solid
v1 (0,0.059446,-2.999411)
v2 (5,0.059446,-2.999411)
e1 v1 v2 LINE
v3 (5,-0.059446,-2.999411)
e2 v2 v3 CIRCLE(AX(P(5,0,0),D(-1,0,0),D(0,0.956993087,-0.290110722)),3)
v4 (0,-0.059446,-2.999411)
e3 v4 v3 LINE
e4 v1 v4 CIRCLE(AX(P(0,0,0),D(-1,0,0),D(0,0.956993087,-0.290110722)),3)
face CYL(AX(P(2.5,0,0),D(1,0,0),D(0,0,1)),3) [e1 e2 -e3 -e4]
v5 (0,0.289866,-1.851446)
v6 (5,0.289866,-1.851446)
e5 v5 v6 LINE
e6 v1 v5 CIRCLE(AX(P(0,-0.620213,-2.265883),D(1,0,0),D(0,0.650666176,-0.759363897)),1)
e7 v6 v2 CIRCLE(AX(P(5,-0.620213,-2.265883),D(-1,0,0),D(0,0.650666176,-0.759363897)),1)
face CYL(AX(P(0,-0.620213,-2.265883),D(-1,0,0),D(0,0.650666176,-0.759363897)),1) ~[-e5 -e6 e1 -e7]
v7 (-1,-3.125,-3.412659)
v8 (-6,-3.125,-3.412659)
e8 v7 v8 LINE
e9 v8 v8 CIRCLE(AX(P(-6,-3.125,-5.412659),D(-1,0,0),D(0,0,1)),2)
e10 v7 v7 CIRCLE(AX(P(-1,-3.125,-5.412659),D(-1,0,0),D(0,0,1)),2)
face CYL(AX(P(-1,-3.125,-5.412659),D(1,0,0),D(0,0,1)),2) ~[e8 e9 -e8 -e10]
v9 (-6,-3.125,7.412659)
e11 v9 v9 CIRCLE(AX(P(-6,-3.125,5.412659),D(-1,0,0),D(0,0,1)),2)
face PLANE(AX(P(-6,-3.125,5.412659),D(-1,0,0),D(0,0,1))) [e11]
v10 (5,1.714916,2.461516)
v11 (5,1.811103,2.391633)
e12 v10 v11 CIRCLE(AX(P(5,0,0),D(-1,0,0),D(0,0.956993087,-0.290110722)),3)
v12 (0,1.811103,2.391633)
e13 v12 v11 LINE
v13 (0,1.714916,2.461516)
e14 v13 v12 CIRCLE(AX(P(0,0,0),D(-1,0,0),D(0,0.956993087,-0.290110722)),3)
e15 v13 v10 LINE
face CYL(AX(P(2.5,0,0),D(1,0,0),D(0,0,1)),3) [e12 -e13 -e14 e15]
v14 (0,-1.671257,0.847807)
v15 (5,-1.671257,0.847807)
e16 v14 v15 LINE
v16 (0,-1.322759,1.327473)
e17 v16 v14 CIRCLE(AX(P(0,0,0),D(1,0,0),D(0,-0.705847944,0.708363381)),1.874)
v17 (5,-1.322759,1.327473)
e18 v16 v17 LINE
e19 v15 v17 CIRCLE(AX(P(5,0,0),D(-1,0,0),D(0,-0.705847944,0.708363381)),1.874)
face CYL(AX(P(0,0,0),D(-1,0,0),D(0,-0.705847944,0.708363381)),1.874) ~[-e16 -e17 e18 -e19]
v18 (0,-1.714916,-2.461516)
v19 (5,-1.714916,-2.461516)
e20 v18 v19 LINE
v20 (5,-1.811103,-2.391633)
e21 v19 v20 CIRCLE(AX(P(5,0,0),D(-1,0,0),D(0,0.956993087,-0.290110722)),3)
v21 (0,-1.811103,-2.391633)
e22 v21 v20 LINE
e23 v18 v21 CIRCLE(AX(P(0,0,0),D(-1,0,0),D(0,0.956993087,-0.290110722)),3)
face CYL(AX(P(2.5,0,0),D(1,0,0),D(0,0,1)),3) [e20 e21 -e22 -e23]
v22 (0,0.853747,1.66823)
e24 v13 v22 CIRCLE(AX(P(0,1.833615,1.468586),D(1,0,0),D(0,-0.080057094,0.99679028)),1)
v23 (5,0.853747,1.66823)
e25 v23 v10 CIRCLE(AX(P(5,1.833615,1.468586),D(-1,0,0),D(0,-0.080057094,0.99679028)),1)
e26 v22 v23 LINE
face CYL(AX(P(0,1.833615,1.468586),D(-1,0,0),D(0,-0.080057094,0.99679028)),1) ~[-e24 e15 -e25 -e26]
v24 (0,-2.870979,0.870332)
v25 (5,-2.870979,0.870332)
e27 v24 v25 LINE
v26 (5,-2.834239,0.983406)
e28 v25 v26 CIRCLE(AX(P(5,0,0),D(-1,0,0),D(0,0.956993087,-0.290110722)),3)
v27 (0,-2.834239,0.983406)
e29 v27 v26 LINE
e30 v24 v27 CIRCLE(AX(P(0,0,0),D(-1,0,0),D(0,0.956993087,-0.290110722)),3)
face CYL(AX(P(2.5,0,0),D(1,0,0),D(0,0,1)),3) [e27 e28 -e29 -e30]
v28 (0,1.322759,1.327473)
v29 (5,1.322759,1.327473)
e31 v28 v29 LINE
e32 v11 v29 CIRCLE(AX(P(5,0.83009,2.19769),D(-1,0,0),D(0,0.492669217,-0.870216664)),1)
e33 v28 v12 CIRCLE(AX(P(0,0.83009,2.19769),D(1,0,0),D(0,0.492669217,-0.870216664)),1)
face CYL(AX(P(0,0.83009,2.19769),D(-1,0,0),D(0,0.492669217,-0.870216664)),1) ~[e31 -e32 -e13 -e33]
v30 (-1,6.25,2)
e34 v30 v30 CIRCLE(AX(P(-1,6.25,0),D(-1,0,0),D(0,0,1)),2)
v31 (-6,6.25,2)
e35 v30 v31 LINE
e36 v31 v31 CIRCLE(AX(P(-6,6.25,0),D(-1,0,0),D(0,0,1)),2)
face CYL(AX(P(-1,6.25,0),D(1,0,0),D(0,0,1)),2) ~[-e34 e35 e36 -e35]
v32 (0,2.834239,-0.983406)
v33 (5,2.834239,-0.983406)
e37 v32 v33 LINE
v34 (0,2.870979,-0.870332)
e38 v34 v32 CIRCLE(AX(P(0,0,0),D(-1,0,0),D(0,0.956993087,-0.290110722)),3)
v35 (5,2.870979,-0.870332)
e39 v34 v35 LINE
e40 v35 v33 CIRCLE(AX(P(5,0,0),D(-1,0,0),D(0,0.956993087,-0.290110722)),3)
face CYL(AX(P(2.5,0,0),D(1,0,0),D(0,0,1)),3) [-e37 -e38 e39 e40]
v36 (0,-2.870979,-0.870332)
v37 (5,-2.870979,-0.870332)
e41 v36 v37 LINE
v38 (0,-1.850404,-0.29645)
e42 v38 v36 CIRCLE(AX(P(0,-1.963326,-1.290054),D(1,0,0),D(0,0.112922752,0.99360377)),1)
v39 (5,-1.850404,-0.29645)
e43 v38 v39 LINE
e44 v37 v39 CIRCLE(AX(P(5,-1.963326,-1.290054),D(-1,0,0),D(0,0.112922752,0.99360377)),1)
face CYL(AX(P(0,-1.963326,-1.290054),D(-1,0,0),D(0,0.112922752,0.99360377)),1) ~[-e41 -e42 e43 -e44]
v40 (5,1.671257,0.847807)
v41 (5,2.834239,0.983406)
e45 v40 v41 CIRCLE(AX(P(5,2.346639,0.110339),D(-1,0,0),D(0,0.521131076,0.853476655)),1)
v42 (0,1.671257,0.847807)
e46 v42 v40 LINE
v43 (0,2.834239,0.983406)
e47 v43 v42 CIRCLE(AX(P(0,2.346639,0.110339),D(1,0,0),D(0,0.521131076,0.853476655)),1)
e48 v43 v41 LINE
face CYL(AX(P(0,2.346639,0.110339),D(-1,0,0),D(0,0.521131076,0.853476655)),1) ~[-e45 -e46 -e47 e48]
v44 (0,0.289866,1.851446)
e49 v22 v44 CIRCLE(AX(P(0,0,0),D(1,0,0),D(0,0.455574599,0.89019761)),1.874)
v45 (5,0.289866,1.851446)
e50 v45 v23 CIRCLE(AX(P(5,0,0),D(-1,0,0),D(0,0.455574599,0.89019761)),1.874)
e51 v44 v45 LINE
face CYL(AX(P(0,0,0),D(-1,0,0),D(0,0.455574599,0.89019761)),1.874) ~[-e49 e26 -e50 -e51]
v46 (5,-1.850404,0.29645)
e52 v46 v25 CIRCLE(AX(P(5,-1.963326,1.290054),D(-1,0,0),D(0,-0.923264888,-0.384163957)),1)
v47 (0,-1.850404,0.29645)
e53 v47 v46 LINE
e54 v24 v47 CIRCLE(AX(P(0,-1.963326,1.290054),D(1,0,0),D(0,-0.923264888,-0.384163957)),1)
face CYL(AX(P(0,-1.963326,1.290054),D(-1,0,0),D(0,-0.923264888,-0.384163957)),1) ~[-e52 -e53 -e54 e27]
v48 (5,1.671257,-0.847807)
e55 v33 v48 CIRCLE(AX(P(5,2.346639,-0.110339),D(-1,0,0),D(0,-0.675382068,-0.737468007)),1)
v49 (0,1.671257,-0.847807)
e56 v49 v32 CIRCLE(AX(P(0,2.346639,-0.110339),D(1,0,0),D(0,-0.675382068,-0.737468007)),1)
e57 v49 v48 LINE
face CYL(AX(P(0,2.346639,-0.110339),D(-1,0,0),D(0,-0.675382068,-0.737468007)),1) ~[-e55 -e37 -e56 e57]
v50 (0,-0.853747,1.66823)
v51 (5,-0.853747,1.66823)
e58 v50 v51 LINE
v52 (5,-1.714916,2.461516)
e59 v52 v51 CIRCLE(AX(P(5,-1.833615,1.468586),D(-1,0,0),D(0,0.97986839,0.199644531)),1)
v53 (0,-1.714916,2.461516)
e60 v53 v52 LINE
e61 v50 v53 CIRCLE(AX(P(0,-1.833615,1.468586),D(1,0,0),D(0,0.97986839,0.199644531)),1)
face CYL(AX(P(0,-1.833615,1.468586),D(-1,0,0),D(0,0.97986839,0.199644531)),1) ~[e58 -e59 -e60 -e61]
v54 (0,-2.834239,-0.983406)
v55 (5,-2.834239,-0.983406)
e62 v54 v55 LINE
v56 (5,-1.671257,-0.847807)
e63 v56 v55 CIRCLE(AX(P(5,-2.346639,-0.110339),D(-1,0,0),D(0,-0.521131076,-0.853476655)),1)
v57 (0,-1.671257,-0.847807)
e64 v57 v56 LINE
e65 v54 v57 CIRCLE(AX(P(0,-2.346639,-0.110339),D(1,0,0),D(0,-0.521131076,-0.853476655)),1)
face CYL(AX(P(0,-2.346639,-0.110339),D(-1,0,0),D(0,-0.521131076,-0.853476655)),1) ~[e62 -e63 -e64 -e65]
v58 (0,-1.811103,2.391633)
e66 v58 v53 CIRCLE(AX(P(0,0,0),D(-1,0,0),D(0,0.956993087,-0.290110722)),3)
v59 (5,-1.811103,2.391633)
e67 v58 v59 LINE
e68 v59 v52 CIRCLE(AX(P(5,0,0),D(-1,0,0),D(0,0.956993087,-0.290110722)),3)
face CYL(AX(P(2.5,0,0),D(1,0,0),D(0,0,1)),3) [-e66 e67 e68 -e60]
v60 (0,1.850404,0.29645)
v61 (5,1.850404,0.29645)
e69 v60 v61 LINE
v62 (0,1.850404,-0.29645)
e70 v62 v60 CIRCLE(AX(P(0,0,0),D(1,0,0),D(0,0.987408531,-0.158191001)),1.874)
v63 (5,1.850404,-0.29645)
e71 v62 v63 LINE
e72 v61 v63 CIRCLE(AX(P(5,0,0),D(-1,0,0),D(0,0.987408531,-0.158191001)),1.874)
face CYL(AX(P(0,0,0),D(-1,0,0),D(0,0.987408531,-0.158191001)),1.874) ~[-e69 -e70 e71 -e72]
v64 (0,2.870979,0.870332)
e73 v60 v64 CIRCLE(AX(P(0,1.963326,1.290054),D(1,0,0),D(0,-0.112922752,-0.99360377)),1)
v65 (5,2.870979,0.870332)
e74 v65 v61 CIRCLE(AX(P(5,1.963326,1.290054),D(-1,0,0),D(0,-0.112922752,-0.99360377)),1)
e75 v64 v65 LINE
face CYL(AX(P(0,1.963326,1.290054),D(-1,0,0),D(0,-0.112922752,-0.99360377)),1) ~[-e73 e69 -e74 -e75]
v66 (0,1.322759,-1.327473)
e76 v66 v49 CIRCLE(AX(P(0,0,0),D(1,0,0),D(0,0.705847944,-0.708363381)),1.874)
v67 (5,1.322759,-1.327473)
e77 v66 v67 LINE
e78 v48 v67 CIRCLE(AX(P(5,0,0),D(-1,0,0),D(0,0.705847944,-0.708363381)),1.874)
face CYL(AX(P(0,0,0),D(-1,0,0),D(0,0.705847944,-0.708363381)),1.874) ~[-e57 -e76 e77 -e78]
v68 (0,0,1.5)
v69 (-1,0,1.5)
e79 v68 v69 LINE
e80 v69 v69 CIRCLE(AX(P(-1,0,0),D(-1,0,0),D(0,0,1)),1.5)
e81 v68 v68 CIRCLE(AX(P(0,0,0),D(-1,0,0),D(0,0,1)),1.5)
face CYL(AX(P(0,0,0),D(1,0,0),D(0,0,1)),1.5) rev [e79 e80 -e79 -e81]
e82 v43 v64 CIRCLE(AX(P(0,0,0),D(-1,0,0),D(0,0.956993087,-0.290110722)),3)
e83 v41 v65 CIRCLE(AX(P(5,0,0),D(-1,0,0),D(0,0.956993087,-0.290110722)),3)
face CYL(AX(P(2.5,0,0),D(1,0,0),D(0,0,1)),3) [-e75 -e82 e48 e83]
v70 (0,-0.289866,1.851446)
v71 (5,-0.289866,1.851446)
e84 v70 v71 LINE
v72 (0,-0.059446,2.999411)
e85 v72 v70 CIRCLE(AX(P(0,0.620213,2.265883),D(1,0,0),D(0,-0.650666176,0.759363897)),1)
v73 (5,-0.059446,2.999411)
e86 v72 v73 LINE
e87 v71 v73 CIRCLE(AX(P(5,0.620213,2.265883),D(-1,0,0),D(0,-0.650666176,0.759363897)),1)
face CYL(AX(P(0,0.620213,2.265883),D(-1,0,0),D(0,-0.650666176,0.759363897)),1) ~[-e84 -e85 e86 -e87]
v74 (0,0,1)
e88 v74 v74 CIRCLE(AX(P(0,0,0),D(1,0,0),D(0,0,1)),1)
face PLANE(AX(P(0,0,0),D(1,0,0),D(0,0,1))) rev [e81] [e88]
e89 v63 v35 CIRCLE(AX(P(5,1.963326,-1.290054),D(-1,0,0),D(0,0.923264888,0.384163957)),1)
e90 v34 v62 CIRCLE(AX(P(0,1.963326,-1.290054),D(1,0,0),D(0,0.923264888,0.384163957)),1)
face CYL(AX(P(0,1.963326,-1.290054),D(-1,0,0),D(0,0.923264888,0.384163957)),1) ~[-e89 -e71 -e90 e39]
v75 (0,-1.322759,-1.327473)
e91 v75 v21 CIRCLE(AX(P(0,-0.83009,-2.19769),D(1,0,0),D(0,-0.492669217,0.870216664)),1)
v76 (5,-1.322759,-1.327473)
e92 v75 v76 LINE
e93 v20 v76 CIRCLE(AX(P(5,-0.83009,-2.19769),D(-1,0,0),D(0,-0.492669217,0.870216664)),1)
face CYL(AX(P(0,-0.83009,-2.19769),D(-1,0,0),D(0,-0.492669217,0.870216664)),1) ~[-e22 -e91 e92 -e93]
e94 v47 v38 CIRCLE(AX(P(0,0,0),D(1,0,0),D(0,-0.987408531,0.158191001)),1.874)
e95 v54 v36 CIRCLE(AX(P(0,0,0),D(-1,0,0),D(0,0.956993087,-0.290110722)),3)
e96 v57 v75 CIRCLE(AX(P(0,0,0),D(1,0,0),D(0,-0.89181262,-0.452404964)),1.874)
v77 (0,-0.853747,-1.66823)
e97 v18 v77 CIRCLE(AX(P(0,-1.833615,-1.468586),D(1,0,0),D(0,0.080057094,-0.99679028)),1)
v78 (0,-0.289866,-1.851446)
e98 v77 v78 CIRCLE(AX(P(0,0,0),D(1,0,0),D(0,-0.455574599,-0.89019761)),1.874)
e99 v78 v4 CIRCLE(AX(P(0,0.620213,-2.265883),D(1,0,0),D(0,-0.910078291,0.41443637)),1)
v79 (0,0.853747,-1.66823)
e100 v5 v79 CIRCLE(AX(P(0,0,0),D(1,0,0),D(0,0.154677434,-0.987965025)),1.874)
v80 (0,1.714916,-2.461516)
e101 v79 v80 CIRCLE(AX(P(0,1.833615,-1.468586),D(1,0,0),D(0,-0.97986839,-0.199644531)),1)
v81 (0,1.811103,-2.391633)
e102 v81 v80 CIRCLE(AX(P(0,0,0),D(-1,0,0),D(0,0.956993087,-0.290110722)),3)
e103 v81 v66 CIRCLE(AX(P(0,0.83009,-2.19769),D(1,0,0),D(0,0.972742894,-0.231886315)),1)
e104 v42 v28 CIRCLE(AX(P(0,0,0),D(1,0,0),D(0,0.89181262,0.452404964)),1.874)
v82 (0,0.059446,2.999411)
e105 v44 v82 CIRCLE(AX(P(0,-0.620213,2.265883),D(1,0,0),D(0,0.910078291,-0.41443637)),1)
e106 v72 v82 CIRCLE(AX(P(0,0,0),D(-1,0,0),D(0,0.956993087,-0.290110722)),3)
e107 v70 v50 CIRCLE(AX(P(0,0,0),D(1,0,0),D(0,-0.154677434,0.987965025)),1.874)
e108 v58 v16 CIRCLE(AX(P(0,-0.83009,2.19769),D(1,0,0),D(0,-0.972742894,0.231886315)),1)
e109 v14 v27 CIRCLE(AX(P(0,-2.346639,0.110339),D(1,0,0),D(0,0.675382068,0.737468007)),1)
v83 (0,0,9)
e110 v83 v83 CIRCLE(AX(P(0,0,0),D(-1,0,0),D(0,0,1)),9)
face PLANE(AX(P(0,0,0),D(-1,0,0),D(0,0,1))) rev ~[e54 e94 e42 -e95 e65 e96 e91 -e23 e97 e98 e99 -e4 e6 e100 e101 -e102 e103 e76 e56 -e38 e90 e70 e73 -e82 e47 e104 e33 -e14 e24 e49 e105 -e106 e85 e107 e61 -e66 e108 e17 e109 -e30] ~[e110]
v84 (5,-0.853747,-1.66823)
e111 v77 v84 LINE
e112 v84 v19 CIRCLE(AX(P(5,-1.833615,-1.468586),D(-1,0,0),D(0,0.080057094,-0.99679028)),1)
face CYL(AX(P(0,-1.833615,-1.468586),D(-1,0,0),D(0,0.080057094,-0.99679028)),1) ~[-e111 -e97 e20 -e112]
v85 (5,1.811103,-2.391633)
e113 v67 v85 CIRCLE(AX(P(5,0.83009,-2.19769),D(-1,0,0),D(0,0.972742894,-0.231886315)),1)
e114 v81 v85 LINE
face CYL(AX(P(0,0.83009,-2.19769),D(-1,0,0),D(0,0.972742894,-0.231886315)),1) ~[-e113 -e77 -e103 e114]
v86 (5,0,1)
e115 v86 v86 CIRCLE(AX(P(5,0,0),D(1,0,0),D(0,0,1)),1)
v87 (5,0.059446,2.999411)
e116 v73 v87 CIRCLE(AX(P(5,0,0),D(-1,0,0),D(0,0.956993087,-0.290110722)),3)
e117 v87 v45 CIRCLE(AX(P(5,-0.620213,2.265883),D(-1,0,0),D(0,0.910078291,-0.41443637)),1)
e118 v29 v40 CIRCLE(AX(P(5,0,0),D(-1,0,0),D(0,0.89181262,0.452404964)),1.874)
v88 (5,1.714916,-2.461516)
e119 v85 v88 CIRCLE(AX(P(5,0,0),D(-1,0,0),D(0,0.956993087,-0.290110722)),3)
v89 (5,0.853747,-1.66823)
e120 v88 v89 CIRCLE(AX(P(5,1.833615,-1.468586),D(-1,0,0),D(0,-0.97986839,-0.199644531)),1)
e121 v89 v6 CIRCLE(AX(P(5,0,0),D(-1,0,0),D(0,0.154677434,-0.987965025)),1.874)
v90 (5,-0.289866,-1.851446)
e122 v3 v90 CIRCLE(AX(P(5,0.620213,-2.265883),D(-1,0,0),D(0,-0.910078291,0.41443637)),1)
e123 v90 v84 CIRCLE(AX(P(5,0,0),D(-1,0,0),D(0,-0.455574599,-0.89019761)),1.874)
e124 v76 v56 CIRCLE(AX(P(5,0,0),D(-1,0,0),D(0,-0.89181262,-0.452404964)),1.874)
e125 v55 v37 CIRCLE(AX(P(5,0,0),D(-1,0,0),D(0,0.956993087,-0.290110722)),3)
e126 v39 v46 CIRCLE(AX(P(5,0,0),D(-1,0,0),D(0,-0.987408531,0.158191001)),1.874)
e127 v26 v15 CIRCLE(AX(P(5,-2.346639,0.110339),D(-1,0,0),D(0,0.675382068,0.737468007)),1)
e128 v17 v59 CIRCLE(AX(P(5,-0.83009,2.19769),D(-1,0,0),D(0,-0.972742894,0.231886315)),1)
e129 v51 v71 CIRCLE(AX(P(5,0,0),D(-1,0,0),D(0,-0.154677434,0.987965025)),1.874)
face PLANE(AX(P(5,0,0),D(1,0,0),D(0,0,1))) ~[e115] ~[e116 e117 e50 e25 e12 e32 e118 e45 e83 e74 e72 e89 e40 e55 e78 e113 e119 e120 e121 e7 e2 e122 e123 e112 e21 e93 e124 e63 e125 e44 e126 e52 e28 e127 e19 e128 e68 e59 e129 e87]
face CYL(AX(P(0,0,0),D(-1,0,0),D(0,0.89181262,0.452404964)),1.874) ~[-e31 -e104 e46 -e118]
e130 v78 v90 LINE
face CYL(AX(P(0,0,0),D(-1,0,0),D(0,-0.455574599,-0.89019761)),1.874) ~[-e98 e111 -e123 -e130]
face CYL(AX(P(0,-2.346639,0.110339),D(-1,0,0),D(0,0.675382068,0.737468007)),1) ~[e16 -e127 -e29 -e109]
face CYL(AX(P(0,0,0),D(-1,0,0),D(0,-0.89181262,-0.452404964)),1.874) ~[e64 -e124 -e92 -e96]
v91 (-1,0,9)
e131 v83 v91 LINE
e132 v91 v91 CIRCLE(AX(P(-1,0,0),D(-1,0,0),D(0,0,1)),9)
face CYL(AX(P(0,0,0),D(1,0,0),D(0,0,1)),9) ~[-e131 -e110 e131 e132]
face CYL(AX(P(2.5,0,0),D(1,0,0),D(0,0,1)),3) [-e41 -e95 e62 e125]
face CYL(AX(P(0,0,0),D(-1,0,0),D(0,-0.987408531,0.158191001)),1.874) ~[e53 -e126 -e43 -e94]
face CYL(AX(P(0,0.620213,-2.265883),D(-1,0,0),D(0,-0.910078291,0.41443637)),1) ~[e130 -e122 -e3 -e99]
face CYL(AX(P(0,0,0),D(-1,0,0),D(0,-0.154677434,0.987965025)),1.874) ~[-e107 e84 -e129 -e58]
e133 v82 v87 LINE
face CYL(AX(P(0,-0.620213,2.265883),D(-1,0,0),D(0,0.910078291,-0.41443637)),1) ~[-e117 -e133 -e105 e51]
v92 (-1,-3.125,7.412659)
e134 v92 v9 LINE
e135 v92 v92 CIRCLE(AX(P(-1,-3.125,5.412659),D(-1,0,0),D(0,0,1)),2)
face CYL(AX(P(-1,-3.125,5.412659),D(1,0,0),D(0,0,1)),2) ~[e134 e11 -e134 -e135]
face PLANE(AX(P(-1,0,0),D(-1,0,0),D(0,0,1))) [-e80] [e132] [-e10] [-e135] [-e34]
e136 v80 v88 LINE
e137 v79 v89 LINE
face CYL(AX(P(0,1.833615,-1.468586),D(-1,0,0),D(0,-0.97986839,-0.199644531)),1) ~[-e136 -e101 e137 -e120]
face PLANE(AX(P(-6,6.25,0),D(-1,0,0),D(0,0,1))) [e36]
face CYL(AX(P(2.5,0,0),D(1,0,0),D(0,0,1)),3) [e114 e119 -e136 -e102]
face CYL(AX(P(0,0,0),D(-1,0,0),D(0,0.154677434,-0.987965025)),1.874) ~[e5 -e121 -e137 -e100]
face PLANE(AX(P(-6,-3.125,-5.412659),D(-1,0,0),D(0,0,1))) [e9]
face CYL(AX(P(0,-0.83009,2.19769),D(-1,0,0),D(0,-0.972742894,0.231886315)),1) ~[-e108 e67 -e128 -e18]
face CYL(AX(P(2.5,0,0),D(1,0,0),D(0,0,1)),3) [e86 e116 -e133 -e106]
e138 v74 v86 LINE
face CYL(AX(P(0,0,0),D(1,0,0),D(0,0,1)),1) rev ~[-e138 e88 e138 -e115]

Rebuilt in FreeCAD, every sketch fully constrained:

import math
import FreeCAD as App
import Part
import Sketcher

V = App.Vector


def add_polygon(sketch, points):
    """Adds a closed chain of lines whose ends are joined by coincident constraints."""
    first, n = sketch.GeometryCount, len(points)
    for a, b in zip(points, points[1:] + points[:1]):
        sketch.addGeometry(Part.LineSegment(App.Vector(*a, 0), App.Vector(*b, 0)), False)
    for i in range(n):
        sketch.addConstraint(Sketcher.Constraint("Coincident", first + i, 2, first + (i + 1) % n, 1))

doc = App.newDocument("Part")
params = doc.addObject("Spreadsheet::Sheet", "Params")
for row, (alias, value) in enumerate([
    ("sketch1_width", "5 mm"),
    ("sketch1_height", "3 mm"),
    ("revolution_angle", "360 deg"),
    ("sketch2_radius", "1 mm"),
    ("sketch3_diameter", "2 mm"),
    ("pocket2_length", "100.001524 mm"),
    ("sketch4_diameter", "18 mm"),
    ("sketch4_diameter2", "3 mm"),
    ("pad1_length", "1 mm"),
    ("sketch5_diameter", "4 mm"),
    ("pad2_length", "5 mm"),
], start=1):
    params.set(f"A{row}", alias)
    params.set(f"B{row}", "=" + value)
    params.setAlias(f"B{row}", alias)

body = doc.addObject("PartDesign::Body", "Body")

# Sketch on XZ plane
sketch1 = doc.addObject("Sketcher::SketchObject", "Sketch")
body.addObject(sketch1)
sketch1.AttachmentSupport = (doc.XZ_Plane, [""])
sketch1.MapMode = "FlatFace"
add_polygon(sketch1, [(0, -3), (0, 0), (5, 0), (5, -3)])  # lines 0-3
sketch1.addConstraint([
    Sketcher.Constraint("Vertical", 0),
    Sketcher.Constraint("Horizontal", 1),
    Sketcher.Constraint("Vertical", 2),
    Sketcher.Constraint("Horizontal", 3),
    Sketcher.Constraint("Coincident", 0, 2, -1, 1),
    Sketcher.Constraint("DistanceX", 1, 1, 1, 2, 5.0),
    Sketcher.Constraint("DistanceY", 0, 1, 0, 2, 3.0),
])
sketch1.setExpression("Constraints[9]", "Params.sketch1_width")
sketch1.setExpression("Constraints[10]", "Params.sketch1_height")
revolution = doc.addObject("PartDesign::Revolution", "Revolution")
body.addObject(revolution)
revolution.Profile = sketch1
revolution.ReferenceAxis = (sketch1, ["H_Axis"])
revolution.setExpression("Angle", "Params.revolution_angle")

# Sketch on YZ plane
sketch2 = doc.addObject("Sketcher::SketchObject", "Sketch001")
body.addObject(sketch2)
sketch2.AttachmentSupport = (doc.YZ_Plane, [""])
sketch2.MapMode = "FlatFace"
sketch2.addGeometry([
    Part.ArcOfCircle(Part.Circle(V(0, 0, 0), V(0, 0, 1), 1.9), math.radians(-9.1), math.radians(9.1)),
    Part.ArcOfCircle(Part.Circle(V(2, -1.3, 0), V(0, 0, 1), 1), math.radians(23), math.radians(96)),
    Part.ArcOfCircle(Part.Circle(V(0, 0, 0), V(0, 0, 1), 3), math.radians(-17), math.radians(17)),
    Part.ArcOfCircle(Part.Circle(V(2, 1.3, 0), V(0, 0, 1), 1), math.radians(-96), math.radians(-23)),
], False)
sketch2.addConstraint([
    Sketcher.Constraint("Coincident", 0, 1, 1, 2),
    Sketcher.Constraint("Coincident", 1, 1, 2, 1),
    Sketcher.Constraint("Coincident", 2, 2, 3, 2),
    Sketcher.Constraint("Coincident", 3, 1, 0, 2),
    Sketcher.Constraint("Coincident", 0, 3, -1, 1),
    Sketcher.Constraint("Coincident", 2, 3, -1, 1),
    Sketcher.Constraint("Equal", 1, 3),
    Sketcher.Constraint("Symmetric", 1, 3, 3, 3, -1),
    Sketcher.Constraint("Radius", 1, 1.0),
    Sketcher.Constraint("Radius", 0, 1.874),
    Sketcher.Constraint("Radius", 2, 3.0254),
    Sketcher.Constraint("DistanceY", 0, 1, 3, 1, 0.5929),
    Sketcher.Constraint("DistanceX", -1, 1, 1, 1, 2.886591),
])
sketch2.setExpression("Constraints[8]", "Params.sketch2_radius")
pocket1 = doc.addObject("PartDesign::Pocket", "Pocket")
body.addObject(pocket1)
pocket1.Profile = sketch2
pocket1.Type = "ThroughAll"
pocket1.Reversed = True
doc.recompute()

polarpattern = doc.addObject("PartDesign::PolarPattern", "PolarPattern")
body.addObject(polarpattern)
polarpattern.Originals = [pocket1]
polarpattern.Axis = (doc.X_Axis, [""])
polarpattern.Angle = 360
polarpattern.Occurrences = 10
body.Tip = polarpattern

# Sketch on YZ plane
sketch3 = doc.addObject("Sketcher::SketchObject", "Sketch002")
body.addObject(sketch3)
sketch3.AttachmentSupport = (doc.YZ_Plane, [""])
sketch3.MapMode = "FlatFace"
sketch3.addGeometry(Part.Circle(V(0, 0, 0), V(0, 0, 1), 1), False)
sketch3.addConstraint([
    Sketcher.Constraint("Coincident", 0, 3, -1, 1),
    Sketcher.Constraint("Diameter", 0, 2.0),
])
sketch3.setExpression("Constraints[1]", "Params.sketch3_diameter")
pocket2 = doc.addObject("PartDesign::Pocket", "Pocket001")
body.addObject(pocket2)
pocket2.Profile = sketch3
pocket2.setExpression("Length", "Params.pocket2_length")
pocket2.Midplane = True

# Sketch on YZ plane
sketch4 = doc.addObject("Sketcher::SketchObject", "Sketch003")
body.addObject(sketch4)
sketch4.AttachmentSupport = (doc.YZ_Plane, [""])
sketch4.MapMode = "FlatFace"
sketch4.addGeometry([
    Part.Circle(V(0, 0, 0), V(0, 0, 1), 9),
    Part.Circle(V(0, 0, 0), V(0, 0, 1), 1.5),
], False)
sketch4.addConstraint([
    Sketcher.Constraint("Coincident", 0, 3, -1, 1),
    Sketcher.Constraint("Coincident", 1, 3, -1, 1),
    Sketcher.Constraint("Diameter", 0, 18.0),
    Sketcher.Constraint("Diameter", 1, 3.0),
])
sketch4.setExpression("Constraints[2]", "Params.sketch4_diameter")
sketch4.setExpression("Constraints[3]", "Params.sketch4_diameter2")
pad1 = doc.addObject("PartDesign::Pad", "Pad")
body.addObject(pad1)
pad1.Profile = sketch4
pad1.setExpression("Length", "Params.pad1_length")
pad1.Reversed = True

# Sketch on YZ plane
sketch5 = doc.addObject("Sketcher::SketchObject", "Sketch004")
body.addObject(sketch5)
sketch5.AttachmentSupport = (doc.YZ_Plane, [""])
sketch5.MapMode = "FlatFace"
sketch5.AttachmentOffset = App.Placement(V(0, 0, -1), App.Rotation())
sketch5.addGeometry([
    Part.Circle(V(6.2, 0, 0), V(0, 0, 1), 2),
    Part.Circle(V(-3.1, -5.4, 0), V(0, 0, 1), 2),
    Part.Circle(V(-3.1, 5.4, 0), V(0, 0, 1), 2),
], False)
sketch5.addConstraint([
    Sketcher.Constraint("Equal", 0, 1),
    Sketcher.Constraint("Equal", 1, 2),
    Sketcher.Constraint("Symmetric", 1, 3, 2, 3, -1),
    Sketcher.Constraint("PointOnObject", 0, 3, -1),
    Sketcher.Constraint("Diameter", 0, 4.0),
    Sketcher.Constraint("DistanceX", -1, 1, 0, 3, 6.25),
    Sketcher.Constraint("DistanceX", 1, 3, -1, 1, 3.125),
    Sketcher.Constraint("DistanceY", 1, 3, -1, 1, 5.412659),
])
sketch5.setExpression("Constraints[4]", "Params.sketch5_diameter")
pad2 = doc.addObject("PartDesign::Pad", "Pad001")
body.addObject(pad2)
pad2.Profile = sketch5
pad2.setExpression("Length", "Params.pad2_length")
pad2.Reversed = True

doc.recompute()
